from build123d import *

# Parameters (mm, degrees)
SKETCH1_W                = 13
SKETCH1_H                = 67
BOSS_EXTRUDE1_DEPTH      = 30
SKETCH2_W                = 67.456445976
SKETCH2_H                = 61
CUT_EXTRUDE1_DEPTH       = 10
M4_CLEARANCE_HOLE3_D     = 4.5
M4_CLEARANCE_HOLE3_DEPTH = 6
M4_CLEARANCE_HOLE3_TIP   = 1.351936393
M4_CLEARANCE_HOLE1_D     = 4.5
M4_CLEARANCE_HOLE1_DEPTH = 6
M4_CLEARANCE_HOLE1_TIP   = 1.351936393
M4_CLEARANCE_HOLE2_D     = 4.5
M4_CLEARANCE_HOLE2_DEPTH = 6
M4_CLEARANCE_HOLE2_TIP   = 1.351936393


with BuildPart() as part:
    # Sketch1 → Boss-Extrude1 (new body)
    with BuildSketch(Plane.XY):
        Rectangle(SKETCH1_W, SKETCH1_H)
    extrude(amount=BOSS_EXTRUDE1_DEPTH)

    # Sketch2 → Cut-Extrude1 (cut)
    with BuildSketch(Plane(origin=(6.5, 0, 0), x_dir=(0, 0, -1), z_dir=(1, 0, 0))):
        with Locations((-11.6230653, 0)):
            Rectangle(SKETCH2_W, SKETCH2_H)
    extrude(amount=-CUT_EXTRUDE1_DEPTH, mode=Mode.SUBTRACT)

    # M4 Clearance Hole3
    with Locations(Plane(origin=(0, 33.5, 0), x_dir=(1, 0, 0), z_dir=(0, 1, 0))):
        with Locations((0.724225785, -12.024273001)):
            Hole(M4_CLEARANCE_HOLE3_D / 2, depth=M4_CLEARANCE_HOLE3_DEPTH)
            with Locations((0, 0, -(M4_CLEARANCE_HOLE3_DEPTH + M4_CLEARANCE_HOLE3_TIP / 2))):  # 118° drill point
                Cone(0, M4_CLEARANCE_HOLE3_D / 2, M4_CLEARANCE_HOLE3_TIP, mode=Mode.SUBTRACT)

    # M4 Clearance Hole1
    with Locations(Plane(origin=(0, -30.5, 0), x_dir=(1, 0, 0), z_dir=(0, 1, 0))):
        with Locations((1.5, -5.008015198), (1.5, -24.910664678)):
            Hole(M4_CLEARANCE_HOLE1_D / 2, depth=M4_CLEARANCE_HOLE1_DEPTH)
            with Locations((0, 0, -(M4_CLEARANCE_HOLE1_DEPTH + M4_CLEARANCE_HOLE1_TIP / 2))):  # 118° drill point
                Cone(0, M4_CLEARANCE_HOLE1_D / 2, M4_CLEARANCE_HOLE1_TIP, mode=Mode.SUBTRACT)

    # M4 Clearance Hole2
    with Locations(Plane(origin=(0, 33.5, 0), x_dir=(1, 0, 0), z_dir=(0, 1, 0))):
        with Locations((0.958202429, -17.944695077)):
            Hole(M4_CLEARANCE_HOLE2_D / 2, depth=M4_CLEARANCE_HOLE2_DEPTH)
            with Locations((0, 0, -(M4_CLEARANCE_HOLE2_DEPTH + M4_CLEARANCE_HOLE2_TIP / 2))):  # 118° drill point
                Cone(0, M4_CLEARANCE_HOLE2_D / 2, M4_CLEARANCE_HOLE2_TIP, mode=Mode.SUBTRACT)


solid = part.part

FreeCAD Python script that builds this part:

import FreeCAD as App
import Part
import Sketcher
from FreeCAD import Vector


def add_polygon(sketch, points):
    """Adds a closed chain of lines whose ends are joined by coincident constraints."""
    first, n = sketch.GeometryCount, len(points)
    for a, b in zip(points, points[1:] + points[:1]):
        sketch.addGeometry(Part.LineSegment(App.Vector(*a, 0), App.Vector(*b, 0)), False)
    for i in range(n):
        sketch.addConstraint(Sketcher.Constraint("Coincident", first + i, 2, first + (i + 1) % n, 1))

doc = App.newDocument("Part")
body = doc.addObject("PartDesign::Body", "Body")

sketch1 = doc.addObject("Sketcher::SketchObject", "Sketch")
body.addObject(sketch1)
sketch1.AttachmentSupport = (doc.XY_Plane, [""])
sketch1.MapMode = "FlatFace"
add_polygon(sketch1, [(-6, 34), (-6, -34), (6, -34), (6, 34)])
sketch1.addConstraint(Sketcher.Constraint("Vertical", 0))
sketch1.addConstraint(Sketcher.Constraint("Horizontal", 1))
sketch1.addConstraint(Sketcher.Constraint("Vertical", 2))
sketch1.addConstraint(Sketcher.Constraint("Horizontal", 3))
sketch1.addConstraint(Sketcher.Constraint("Symmetric", 0, 2, 2, 2, -1, 1))
sketch1.addConstraint(Sketcher.Constraint("DistanceX", 1, 1, 1, 2, 13.0))
sketch1.addConstraint(Sketcher.Constraint("DistanceY", 0, 2, 0, 1, 67.0))
pad1 = doc.addObject("PartDesign::Pad", "Pad")
body.addObject(pad1)
pad1.Profile = sketch1
pad1.Length = 30

sketch2 = doc.addObject("Sketcher::SketchObject", "Sketch001")
body.addObject(sketch2)
sketch2.AttachmentSupport = (doc.YZ_Plane, [""])
sketch2.MapMode = "FlatFace"
sketch2.AttachmentOffset = App.Placement(Vector(0, 0, 6.5), App.Rotation())
add_polygon(sketch2, [(30, 45), (-30, 45), (-30, -22), (30, -22)])
sketch2.addConstraint(Sketcher.Constraint("Horizontal", 0))
sketch2.addConstraint(Sketcher.Constraint("Vertical", 1))
sketch2.addConstraint(Sketcher.Constraint("Horizontal", 2))
sketch2.addConstraint(Sketcher.Constraint("Vertical", 3))
sketch2.addConstraint(Sketcher.Constraint("DistanceX", 0, 2, 0, 1, 61.0))
sketch2.addConstraint(Sketcher.Constraint("DistanceX", 0, 2, -1, 1, 30.5))
sketch2.addConstraint(Sketcher.Constraint("DistanceY", 1, 2, 1, 1, 67.456446))
sketch2.addConstraint(Sketcher.Constraint("DistanceY", -1, 1, 0, 2, 45.351288))
pocket1 = doc.addObject("PartDesign::Pocket", "Pocket")
body.addObject(pocket1)
pocket1.Profile = sketch2
pocket1.Length = 10

sketch3 = doc.addObject("Sketcher::SketchObject", "Sketch002")
body.addObject(sketch3)
sketch3.AttachmentSupport = (doc.XZ_Plane, [""])
sketch3.MapMode = "FlatFace"
sketch3.AttachmentOffset = App.Placement(Vector(0, 0, -33.5), App.Rotation())
sketch3.addGeometry(Part.Circle(Vector(0.7, 12, 0), Vector(0, 0, 1), 2.2), False)
sketch3.addConstraint(Sketcher.Constraint("Diameter", 0, 4.5))
sketch3.addConstraint(Sketcher.Constraint("DistanceX", -1, 1, 0, 3, 0.724226))
sketch3.addConstraint(Sketcher.Constraint("DistanceY", -1, 1, 0, 3, 12.024273))
doc.recompute()
hole = doc.addObject("PartDesign::Hole", "Hole")
body.addObject(hole)
hole.Profile = sketch3
hole.ThreadType = "None"
hole.Diameter = 4.5
hole.DepthType = "Dimension"
hole.Depth = 6
hole.DrillPoint = "Angled"
hole.DrillPointAngle = 118
hole.Reversed = True

sketch4 = doc.addObject("Sketcher::SketchObject", "Sketch003")
body.addObject(sketch4)
sketch4.AttachmentSupport = (doc.XZ_Plane, [""])
sketch4.MapMode = "FlatFace"
sketch4.AttachmentOffset = App.Placement(Vector(0, 0, 30.5), App.Rotation())
sketch4.addGeometry(Part.Circle(Vector(1.5, 5, 0), Vector(0, 0, 1), 2.2), False)
sketch4.addGeometry(Part.Circle(Vector(1.5, 24.9, 0), Vector(0, 0, 1), 2.2), False)
sketch4.addConstraint(Sketcher.Constraint("Equal", 0, 1))
sketch4.addConstraint(Sketcher.Constraint("Vertical", 0, 3, 1, 3))
sketch4.addConstraint(Sketcher.Constraint("Diameter", 0, 4.5))
sketch4.addConstraint(Sketcher.Constraint("DistanceX", -1, 1, 0, 3, 1.5))
sketch4.addConstraint(Sketcher.Constraint("DistanceY", 0, 3, 1, 3, 19.902649))
sketch4.addConstraint(Sketcher.Constraint("DistanceY", -1, 1, 0, 3, 5.008015))
doc.recompute()
hole2 = doc.addObject("PartDesign::Hole", "Hole001")
body.addObject(hole2)
hole2.Profile = sketch4
hole2.ThreadType = "None"
hole2.Diameter = 4.5
hole2.DepthType = "Dimension"
hole2.Depth = 6
hole2.DrillPoint = "Angled"
hole2.DrillPointAngle = 118
hole2.Reversed = True

sketch5 = doc.addObject("Sketcher::SketchObject", "Sketch004")
body.addObject(sketch5)
sketch5.AttachmentSupport = (doc.XZ_Plane, [""])
sketch5.MapMode = "FlatFace"
sketch5.AttachmentOffset = App.Placement(Vector(0, 0, -33.5), App.Rotation())
sketch5.addGeometry(Part.Circle(Vector(1, 17.9, 0), Vector(0, 0, 1), 2.2), False)
sketch5.addConstraint(Sketcher.Constraint("Diameter", 0, 4.5))
sketch5.addConstraint(Sketcher.Constraint("DistanceX", -1, 1, 0, 3, 0.958202))
sketch5.addConstraint(Sketcher.Constraint("DistanceY", -1, 1, 0, 3, 17.944695))
doc.recompute()
hole3 = doc.addObject("PartDesign::Hole", "Hole002")
body.addObject(hole3)
hole3.Profile = sketch5
hole3.ThreadType = "None"
hole3.Diameter = 4.5
hole3.DepthType = "Dimension"
hole3.Depth = 6
hole3.DrillPoint = "Angled"
hole3.DrillPointAngle = 118
hole3.Reversed = True

doc.recompute()
